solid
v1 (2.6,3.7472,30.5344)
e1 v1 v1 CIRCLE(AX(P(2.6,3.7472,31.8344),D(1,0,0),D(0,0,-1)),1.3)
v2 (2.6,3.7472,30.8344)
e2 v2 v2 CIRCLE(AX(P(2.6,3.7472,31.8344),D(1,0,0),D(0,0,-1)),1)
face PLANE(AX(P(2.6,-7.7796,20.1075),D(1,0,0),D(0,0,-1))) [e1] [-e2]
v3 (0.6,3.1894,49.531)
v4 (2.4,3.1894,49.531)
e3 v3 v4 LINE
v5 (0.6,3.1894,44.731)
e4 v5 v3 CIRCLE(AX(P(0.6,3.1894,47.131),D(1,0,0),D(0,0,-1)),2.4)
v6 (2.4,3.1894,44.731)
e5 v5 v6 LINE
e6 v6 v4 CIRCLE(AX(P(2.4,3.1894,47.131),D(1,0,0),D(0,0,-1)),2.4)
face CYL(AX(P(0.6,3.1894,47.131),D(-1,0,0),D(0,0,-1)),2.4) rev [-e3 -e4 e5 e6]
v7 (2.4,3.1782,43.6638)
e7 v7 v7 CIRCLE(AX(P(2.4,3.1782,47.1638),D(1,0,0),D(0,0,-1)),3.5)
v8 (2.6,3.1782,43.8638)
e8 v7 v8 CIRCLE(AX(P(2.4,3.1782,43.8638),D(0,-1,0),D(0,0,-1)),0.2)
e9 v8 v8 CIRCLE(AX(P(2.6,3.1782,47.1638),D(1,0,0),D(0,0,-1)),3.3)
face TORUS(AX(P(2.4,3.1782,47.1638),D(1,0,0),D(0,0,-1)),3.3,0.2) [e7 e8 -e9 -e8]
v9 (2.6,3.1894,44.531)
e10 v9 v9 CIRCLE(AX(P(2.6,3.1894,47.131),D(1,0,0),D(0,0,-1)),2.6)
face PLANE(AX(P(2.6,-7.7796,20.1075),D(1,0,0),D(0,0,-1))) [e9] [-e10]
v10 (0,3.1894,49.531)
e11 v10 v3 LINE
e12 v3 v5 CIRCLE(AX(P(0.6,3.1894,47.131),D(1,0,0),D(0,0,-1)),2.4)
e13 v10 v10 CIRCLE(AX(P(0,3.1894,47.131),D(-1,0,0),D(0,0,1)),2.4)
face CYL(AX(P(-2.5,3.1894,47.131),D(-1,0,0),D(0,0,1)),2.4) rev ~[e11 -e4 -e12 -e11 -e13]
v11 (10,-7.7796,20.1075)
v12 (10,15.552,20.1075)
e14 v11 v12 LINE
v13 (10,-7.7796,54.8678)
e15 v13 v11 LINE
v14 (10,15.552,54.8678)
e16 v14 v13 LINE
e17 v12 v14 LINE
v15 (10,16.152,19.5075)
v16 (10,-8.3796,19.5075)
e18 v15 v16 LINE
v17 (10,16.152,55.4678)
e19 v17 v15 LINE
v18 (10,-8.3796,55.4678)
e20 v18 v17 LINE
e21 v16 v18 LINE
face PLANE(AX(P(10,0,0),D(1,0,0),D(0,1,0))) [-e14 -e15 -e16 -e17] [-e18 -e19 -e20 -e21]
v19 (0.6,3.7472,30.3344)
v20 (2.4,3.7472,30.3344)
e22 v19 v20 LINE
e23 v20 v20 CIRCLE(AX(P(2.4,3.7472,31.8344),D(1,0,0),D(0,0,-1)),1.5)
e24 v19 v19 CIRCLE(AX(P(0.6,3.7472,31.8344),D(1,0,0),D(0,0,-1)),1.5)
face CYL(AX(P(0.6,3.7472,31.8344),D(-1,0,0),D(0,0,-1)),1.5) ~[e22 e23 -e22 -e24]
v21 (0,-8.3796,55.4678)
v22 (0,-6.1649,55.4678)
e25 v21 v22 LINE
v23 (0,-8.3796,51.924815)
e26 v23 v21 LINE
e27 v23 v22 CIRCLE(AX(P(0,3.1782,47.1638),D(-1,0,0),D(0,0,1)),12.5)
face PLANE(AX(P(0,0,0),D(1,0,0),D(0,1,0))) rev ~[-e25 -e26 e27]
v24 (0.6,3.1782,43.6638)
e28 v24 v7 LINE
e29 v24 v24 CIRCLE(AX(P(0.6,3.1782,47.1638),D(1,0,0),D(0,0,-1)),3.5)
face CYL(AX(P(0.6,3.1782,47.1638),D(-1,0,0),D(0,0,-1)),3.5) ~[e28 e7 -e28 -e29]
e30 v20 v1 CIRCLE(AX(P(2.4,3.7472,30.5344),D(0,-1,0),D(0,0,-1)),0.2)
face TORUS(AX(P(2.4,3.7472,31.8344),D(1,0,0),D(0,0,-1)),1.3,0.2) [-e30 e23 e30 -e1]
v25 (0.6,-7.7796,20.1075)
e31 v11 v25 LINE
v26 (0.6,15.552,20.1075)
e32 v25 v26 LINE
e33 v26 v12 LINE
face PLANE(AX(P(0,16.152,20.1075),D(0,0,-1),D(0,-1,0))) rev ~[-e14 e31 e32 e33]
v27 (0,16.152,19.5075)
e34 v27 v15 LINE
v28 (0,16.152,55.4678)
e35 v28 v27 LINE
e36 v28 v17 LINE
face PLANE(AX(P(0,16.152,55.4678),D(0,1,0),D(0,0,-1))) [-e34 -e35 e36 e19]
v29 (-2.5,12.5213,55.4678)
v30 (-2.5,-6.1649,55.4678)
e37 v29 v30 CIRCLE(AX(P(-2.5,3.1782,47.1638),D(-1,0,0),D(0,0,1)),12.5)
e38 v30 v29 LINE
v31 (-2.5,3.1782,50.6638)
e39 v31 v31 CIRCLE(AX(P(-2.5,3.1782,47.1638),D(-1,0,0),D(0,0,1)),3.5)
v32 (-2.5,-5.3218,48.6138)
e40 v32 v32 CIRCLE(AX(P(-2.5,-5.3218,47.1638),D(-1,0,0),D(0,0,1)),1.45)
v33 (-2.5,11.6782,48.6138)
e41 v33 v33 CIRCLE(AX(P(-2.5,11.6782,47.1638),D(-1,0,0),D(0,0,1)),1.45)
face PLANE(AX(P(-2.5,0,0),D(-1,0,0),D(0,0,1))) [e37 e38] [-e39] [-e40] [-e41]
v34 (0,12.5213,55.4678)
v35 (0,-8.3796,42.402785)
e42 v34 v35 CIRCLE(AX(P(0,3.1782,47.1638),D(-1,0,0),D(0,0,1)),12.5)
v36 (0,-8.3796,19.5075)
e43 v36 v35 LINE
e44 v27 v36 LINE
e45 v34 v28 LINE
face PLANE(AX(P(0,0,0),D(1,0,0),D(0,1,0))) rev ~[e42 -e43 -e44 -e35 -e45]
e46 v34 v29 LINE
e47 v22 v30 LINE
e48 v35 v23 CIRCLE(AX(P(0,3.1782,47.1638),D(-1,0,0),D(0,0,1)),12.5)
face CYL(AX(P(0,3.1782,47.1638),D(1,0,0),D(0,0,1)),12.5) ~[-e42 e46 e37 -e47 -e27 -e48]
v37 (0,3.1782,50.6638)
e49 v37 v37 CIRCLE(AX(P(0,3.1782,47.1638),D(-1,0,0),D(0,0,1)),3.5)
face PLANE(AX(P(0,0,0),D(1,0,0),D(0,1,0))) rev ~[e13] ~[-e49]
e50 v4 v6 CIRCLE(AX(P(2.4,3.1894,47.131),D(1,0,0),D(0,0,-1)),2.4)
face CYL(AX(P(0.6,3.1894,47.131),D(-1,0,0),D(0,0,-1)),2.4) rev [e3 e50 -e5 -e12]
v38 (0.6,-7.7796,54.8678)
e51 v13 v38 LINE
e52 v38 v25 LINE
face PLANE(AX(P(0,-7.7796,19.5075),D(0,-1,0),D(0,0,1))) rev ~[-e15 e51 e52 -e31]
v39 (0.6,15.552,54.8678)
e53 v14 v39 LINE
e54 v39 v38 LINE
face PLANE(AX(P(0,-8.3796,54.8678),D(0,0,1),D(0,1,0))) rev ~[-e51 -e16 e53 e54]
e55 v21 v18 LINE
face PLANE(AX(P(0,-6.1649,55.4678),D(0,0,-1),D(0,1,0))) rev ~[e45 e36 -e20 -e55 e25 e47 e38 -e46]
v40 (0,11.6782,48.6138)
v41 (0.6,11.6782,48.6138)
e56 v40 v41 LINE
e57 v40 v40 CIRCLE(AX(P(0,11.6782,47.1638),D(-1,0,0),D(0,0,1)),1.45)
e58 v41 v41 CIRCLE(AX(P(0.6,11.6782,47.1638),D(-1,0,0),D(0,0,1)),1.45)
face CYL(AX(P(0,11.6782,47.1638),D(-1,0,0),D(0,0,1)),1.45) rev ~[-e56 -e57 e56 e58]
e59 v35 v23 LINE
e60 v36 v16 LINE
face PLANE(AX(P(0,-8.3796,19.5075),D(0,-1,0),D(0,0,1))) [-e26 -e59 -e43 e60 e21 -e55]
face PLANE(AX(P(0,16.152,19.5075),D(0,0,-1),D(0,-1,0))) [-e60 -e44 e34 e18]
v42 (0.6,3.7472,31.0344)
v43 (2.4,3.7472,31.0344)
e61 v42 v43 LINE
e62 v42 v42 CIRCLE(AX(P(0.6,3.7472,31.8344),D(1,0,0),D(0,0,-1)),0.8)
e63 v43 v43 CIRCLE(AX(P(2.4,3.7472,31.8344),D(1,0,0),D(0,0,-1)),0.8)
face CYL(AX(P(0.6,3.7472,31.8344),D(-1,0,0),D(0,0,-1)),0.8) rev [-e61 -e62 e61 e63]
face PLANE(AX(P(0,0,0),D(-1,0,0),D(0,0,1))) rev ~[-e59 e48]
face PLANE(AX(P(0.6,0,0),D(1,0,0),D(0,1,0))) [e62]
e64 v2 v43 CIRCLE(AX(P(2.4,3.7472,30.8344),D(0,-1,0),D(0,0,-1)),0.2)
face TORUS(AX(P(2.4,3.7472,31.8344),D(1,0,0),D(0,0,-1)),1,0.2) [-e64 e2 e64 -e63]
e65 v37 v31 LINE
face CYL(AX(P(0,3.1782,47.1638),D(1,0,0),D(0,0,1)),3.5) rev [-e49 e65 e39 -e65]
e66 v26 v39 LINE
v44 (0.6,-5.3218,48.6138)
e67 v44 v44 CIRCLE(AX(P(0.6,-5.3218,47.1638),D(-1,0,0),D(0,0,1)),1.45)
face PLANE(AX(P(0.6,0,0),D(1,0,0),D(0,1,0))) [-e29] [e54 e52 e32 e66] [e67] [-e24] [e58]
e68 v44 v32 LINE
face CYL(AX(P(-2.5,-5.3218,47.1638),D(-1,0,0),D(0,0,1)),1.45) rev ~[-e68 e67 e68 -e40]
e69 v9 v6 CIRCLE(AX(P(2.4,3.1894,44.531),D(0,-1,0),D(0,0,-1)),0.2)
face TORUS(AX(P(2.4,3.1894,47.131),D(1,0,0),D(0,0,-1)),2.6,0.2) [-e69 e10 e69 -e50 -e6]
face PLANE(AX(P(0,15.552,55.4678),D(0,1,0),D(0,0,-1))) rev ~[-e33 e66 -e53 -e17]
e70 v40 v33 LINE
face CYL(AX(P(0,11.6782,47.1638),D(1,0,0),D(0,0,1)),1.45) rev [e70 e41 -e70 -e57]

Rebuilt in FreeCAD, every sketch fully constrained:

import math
import FreeCAD as App
import Part
import Sketcher


def edges_at(feature, points):
    """Names of the edges that pass closest to the given points."""
    edges = feature.Shape.Edges
    near = lambda p: min(range(len(edges)), key=lambda i: edges[i].distToShape(Part.Vertex(*p))[0])
    return sorted({f"Edge{near(p) + 1}" for p in points})


def faces_at(feature, points):
    """Names of the faces that lie closest to the given points."""
    faces = feature.Shape.Faces
    near = lambda p: min(range(len(faces)), key=lambda i: faces[i].distToShape(Part.Vertex(*p))[0])
    return sorted({f"Face{near(p) + 1}" for p in points})


def add_polygon(sketch, points):
    """Adds a closed chain of lines whose ends are joined by coincident constraints."""
    first, n = sketch.GeometryCount, len(points)
    for a, b in zip(points, points[1:] + points[:1]):
        sketch.addGeometry(Part.LineSegment(App.Vector(*a, 0), App.Vector(*b, 0)), False)
    for i in range(n):
        sketch.addConstraint(Sketcher.Constraint("Coincident", first + i, 2, first + (i + 1) % n, 1))

doc = App.newDocument("Part")
params = doc.addObject("Spreadsheet::Sheet", "Params")
for row, (alias, value) in enumerate([
    ("pad1_length", "10 mm"),
    ("thickness_wall", "0.6 mm"),
    ("sketch2_diameter", "3 mm"),
    ("sketch2_diameter2", "4.8 mm"),
    ("sketch2_diameter3", "1.6 mm"),
    ("sketch2_diameter4", "7 mm"),
    ("pad2_length", "2 mm"),
    ("fillet_radius", "0.2 mm"),
    ("sketch3_diameter", "2.9 mm"),
    ("sketch4_diameter", "7 mm"),
    ("sketch4_diameter2", "2.5 mm"),
    ("sketch4_diameter3", "2.9 mm"),
    ("sketch4_radius", "12.5 mm"),
    ("pad3_length", "2.5 mm"),
    ("sketch5_diameter", "4.8 mm"),
    ("sketch6_diameter", "2.9 mm"),
], start=1):
    params.set(f"A{row}", alias)
    params.set(f"B{row}", "=" + value)
    params.setAlias(f"B{row}", alias)

body = doc.addObject("PartDesign::Body", "Body")

sketch1 = body.newObject("Sketcher::SketchObject", "Sketch")
sketch1.AttachmentSupport = (doc.getObject("YZ_Plane"), [""])
sketch1.MapMode = "FlatFace"
add_polygon(sketch1, [(-8, 20), (16, 20), (16, 55), (-8, 55)])
sketch1.addConstraint([
    Sketcher.Constraint("Horizontal", 0),
    Sketcher.Constraint("Vertical", 1),
    Sketcher.Constraint("Horizontal", 2),
    Sketcher.Constraint("Vertical", 3),
    Sketcher.Constraint("DistanceX", 0, 1, 0, 2, 24.5316),
    Sketcher.Constraint("DistanceY", 1, 1, 1, 2, 35.9603),
    Sketcher.Constraint("DistanceX", -1, 1, 0, 2, 16.152),
    Sketcher.Constraint("DistanceY", -1, 1, 0, 2, 19.5075),
])
pad1 = body.newObject("PartDesign::Pad", "Pad")
pad1.Profile = sketch1
pad1.setExpression("Length", "Params.pad1_length")
doc.recompute()

thickness = body.newObject("PartDesign::Thickness", "Thickness")
thickness.Base = (pad1, faces_at(pad1, [(10, -0.202, 43.481)]))
thickness.setExpression("Value", "Params.thickness_wall")
thickness.Reversed = True
thickness.Join = "Intersection"

sketch2 = body.newObject("Sketcher::SketchObject", "Sketch001")
sketch2.AttachmentSupport = (doc.getObject("YZ_Plane"), [""])
sketch2.MapMode = "FlatFace"
sketch2.AttachmentOffset = App.Placement(App.Vector(0, 0, 0.6), App.Rotation())
sketch2.addGeometry([
    Part.Circle(App.Vector(3.2, 47.2, 0), App.Vector(0, 0, 1), 3.5),
    Part.Circle(App.Vector(3.2, 47.1, 0), App.Vector(0, 0, 1), 2.4),
    Part.Circle(App.Vector(3.7, 31.8, 0), App.Vector(0, 0, 1), 1.5),
    Part.Circle(App.Vector(3.7, 31.8, 0), App.Vector(0, 0, 1), 0.8),
], False)
sketch2.addConstraint([
    Sketcher.Constraint("Coincident", 3, 3, 2, 3),
    Sketcher.Constraint("Diameter", 2, 3.0),
    Sketcher.Constraint("Diameter", 1, 4.8),
    Sketcher.Constraint("Diameter", 3, 1.6),
    Sketcher.Constraint("Diameter", 0, 7.0),
    Sketcher.Constraint("DistanceY", -1, 1, 1, 3, 47.131),
    Sketcher.Constraint("DistanceX", 0, 3, 2, 3, 0.569),
    Sketcher.Constraint("DistanceX", -1, 1, 0, 3, 3.1782),
    Sketcher.Constraint("DistanceY", -1, 1, 0, 3, 47.1638),
    Sketcher.Constraint("DistanceX", -1, 1, 1, 3, 3.1894),
    Sketcher.Constraint("DistanceY", -1, 1, 2, 3, 31.8344),
])
sketch2.setExpression("Constraints[1]", "Params.sketch2_diameter")
sketch2.setExpression("Constraints[2]", "Params.sketch2_diameter2")
sketch2.setExpression("Constraints[3]", "Params.sketch2_diameter3")
sketch2.setExpression("Constraints[4]", "Params.sketch2_diameter4")
pad2 = body.newObject("PartDesign::Pad", "Pad001")
pad2.Profile = sketch2
pad2.setExpression("Length", "Params.pad2_length")
doc.recompute()

fillet = body.newObject("PartDesign::Fillet", "Fillet")
fillet.Base = (pad2, edges_at(pad2, [
    (2.6, 3.189, 49.531),
    (2.6, 3.178, 50.664),
    (2.6, 3.747, 32.634),
    (2.6, 3.747, 33.334),
]))
fillet.setExpression("Radius", "Params.fillet_radius")

sketch3 = body.newObject("Sketcher::SketchObject", "Sketch002")
sketch3.AttachmentSupport = (doc.getObject("YZ_Plane"), [""])
sketch3.MapMode = "FlatFace"
sketch3.addGeometry([
    Part.Circle(App.Vector(-5.3, 47.2, 0), App.Vector(0, 0, 1), 1.4),
    Part.Circle(App.Vector(11.7, 47.2, 0), App.Vector(0, 0, 1), 1.4),
], False)
sketch3.addConstraint([
    Sketcher.Constraint("Equal", 0, 1),
    Sketcher.Constraint("Horizontal", 0, 3, 1, 3),
    Sketcher.Constraint("Diameter", 0, 2.9),
    Sketcher.Constraint("DistanceX", 0, 3, 1, 3, 17.0),
    Sketcher.Constraint("DistanceX", 0, 3, -1, 1, 5.3218),
    Sketcher.Constraint("DistanceY", -1, 1, 0, 3, 47.1638),
])
sketch3.setExpression("Constraints[2]", "Params.sketch3_diameter")
pocket1 = body.newObject("PartDesign::Pocket", "Pocket")
pocket1.Profile = sketch3
pocket1.Type = "ThroughAll"
pocket1.Reversed = True

sketch4 = body.newObject("Sketcher::SketchObject", "Sketch003")
sketch4.AttachmentSupport = (doc.getObject("YZ_Plane"), [""])
sketch4.MapMode = "FlatFace"
sketch4.addGeometry([
    Part.LineSegment(App.Vector(-6.2, 55.5, 0), App.Vector(12.5, 55.5, 0)),
    Part.ArcOfCircle(Part.Circle(App.Vector(3.2, 47.2, 0), App.Vector(0, 0, 1), 12.5), math.radians(138), math.radians(402)),
    Part.Circle(App.Vector(-5.3, 47.2, 0), App.Vector(0, 0, 1), 1.2),
    Part.Circle(App.Vector(3.2, 47.2, 0), App.Vector(0, 0, 1), 3.5),
    Part.Circle(App.Vector(11.7, 47.2, 0), App.Vector(0, 0, 1), 1.4),
], False)
sketch4.addConstraint([
    Sketcher.Constraint("Coincident", 0, 1, 1, 1),
    Sketcher.Constraint("Coincident", 1, 2, 0, 2),
    Sketcher.Constraint("Horizontal", 0),
    Sketcher.Constraint("Coincident", 3, 3, 1, 3),
    Sketcher.Constraint("Horizontal", 1, 3, 2, 3),
    Sketcher.Constraint("Horizontal", 3, 3, 4, 3),
    Sketcher.Constraint("Diameter", 3, 7.0),
    Sketcher.Constraint("Diameter", 2, 2.5),
    Sketcher.Constraint("Diameter", 4, 2.9),
    Sketcher.Constraint("Radius", 1, 12.5),
    Sketcher.Constraint("DistanceX", 2, 3, 4, 3, 17.0),
    Sketcher.Constraint("DistanceX", 2, 3, 1, 3, 8.5),
    Sketcher.Constraint("DistanceX", 0, 1, 0, 2, 18.6862),
    Sketcher.Constraint("DistanceX", 0, 1, -1, 1, 6.165),
    Sketcher.Constraint("DistanceY", -1, 1, 1, 3, 47.1638),
])
sketch4.setExpression("Constraints[6]", "Params.sketch4_diameter")
sketch4.setExpression("Constraints[7]", "Params.sketch4_diameter2")
sketch4.setExpression("Constraints[8]", "Params.sketch4_diameter3")
sketch4.setExpression("Constraints[9]", "Params.sketch4_radius")
pad3 = body.newObject("PartDesign::Pad", "Pad002")
pad3.Profile = sketch4
pad3.setExpression("Length", "Params.pad3_length")
pad3.Reversed = True

sketch5 = body.newObject("Sketcher::SketchObject", "Sketch004")
sketch5.AttachmentSupport = (doc.getObject("YZ_Plane"), [""])
sketch5.MapMode = "FlatFace"
sketch5.AttachmentOffset = App.Placement(App.Vector(0, 0, -2.5), App.Rotation())
sketch5.addGeometry(Part.Circle(App.Vector(3.2, 47.1, 0), App.Vector(0, 0, 1), 2.4), False)
sketch5.addConstraint([
    Sketcher.Constraint("Diameter", 0, 4.8),
    Sketcher.Constraint("DistanceY", -1, 1, 0, 3, 47.131),
    Sketcher.Constraint("DistanceX", -1, 1, 0, 3, 3.1894),
])
sketch5.setExpression("Constraints[0]", "Params.sketch5_diameter")
pocket2 = body.newObject("PartDesign::Pocket", "Pocket001")
pocket2.Profile = sketch5
pocket2.Type = "ThroughAll"
pocket2.Reversed = True

sketch6 = body.newObject("Sketcher::SketchObject", "Sketch005")
sketch6.AttachmentSupport = (doc.getObject("YZ_Plane"), [""])
sketch6.MapMode = "FlatFace"
sketch6.AttachmentOffset = App.Placement(App.Vector(0, 0, -2.5), App.Rotation())
sketch6.addGeometry(Part.Circle(App.Vector(-5.3, 47.2, 0), App.Vector(0, 0, 1), 1.4), False)
sketch6.addConstraint([
    Sketcher.Constraint("Diameter", 0, 2.9),
    Sketcher.Constraint("DistanceX", 0, 3, -1, 1, 5.3218),
    Sketcher.Constraint("DistanceY", -1, 1, 0, 3, 47.1638),
])
sketch6.setExpression("Constraints[0]", "Params.sketch6_diameter")
pocket3 = body.newObject("PartDesign::Pocket", "Pocket002")
pocket3.Profile = sketch6
pocket3.Type = "ThroughAll"
pocket3.Reversed = True

doc.recompute()
